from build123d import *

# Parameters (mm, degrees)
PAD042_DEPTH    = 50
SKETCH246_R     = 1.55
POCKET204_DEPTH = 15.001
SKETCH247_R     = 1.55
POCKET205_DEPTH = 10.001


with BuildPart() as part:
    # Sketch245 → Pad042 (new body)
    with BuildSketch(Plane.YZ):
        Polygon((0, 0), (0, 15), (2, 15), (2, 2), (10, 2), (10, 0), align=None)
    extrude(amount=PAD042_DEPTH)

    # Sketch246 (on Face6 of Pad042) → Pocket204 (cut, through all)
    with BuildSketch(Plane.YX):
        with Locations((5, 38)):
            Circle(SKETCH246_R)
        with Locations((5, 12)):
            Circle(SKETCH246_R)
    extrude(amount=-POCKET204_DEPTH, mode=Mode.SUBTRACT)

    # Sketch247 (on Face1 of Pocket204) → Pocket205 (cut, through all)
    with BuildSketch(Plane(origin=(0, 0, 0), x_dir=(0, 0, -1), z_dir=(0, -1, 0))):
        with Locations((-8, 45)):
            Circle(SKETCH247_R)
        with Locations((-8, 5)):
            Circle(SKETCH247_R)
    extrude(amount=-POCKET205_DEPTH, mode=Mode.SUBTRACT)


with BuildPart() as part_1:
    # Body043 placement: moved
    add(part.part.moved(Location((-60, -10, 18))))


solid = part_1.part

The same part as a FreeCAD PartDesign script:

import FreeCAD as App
import Part
import Sketcher

V = App.Vector
Q = App.Units.Quantity

doc = App.newDocument("Part")
params = doc.addObject("Spreadsheet::Sheet", "Params")
for row, (alias, value) in enumerate([
    ("sketch1_width", "10 mm"),
    ("sketch1_width2", "8 mm"),
    ("sketch1_height", "15 mm"),
    ("pad1_length", "50 mm"),
    ("sketch2_diameter", "3.1 mm"),
    ("sketch3_diameter", "3.1 mm"),
], start=1):
    params.set(f"A{row}", alias)
    params.set(f"B{row}", "=" + value)
    params.setAlias(f"B{row}", alias)

body = doc.addObject("PartDesign::Body", "Body")

sketch1 = doc.addObject("Sketcher::SketchObject", "Sketch")
body.addObject(sketch1)
sketch1.AttachmentSupport = (doc.YZ_Plane, [""])
sketch1.MapMode = "FlatFace"
sketch1.addGeometry(Part.LineSegment(V(0, 15, 0), V(0, 0, 0)), False)
sketch1.addGeometry(Part.LineSegment(V(0, 0, 0), V(10, 0, 0)), False)
sketch1.addGeometry(Part.LineSegment(V(10, 0, 0), V(10, 2, 0)), False)
sketch1.addGeometry(Part.LineSegment(V(10, 2, 0), V(2, 2, 0)), False)
sketch1.addGeometry(Part.LineSegment(V(2, 2, 0), V(2, 15, 0)), False)
sketch1.addGeometry(Part.LineSegment(V(2, 15, 0), V(0, 15, 0)), False)
sketch1.addConstraint(Sketcher.Constraint("Coincident", 0, 2, 1, 1))
sketch1.addConstraint(Sketcher.Constraint("Coincident", 1, 2, 2, 1))
sketch1.addConstraint(Sketcher.Constraint("Coincident", 2, 2, 3, 1))
sketch1.addConstraint(Sketcher.Constraint("Coincident", 3, 2, 4, 1))
sketch1.addConstraint(Sketcher.Constraint("Coincident", 4, 2, 5, 1))
sketch1.addConstraint(Sketcher.Constraint("Coincident", 5, 2, 0, 1))
sketch1.addConstraint(Sketcher.Constraint("Vertical", 0))
sketch1.addConstraint(Sketcher.Constraint("Horizontal", 1))
sketch1.addConstraint(Sketcher.Constraint("Vertical", 2))
sketch1.addConstraint(Sketcher.Constraint("Horizontal", 3))
sketch1.addConstraint(Sketcher.Constraint("Vertical", 4))
sketch1.addConstraint(Sketcher.Constraint("Horizontal", 5))
sketch1.addConstraint(Sketcher.Constraint("Coincident", 0, 2, -1, 1))
sketch1.addConstraint(Sketcher.Constraint("Equal", 5, 2))
sketch1.addConstraint(Sketcher.Constraint("DistanceX", 1, 1, 1, 2, Q("10 mm")))
sketch1.addConstraint(Sketcher.Constraint("DistanceX", 3, 2, 3, 1, Q("8 mm")))
sketch1.addConstraint(Sketcher.Constraint("DistanceY", 0, 2, 0, 1, Q("15 mm")))
sketch1.setExpression("Constraints[14]", "Params.sketch1_width")
sketch1.setExpression("Constraints[15]", "Params.sketch1_width2")
sketch1.setExpression("Constraints[16]", "Params.sketch1_height")
pad1 = doc.addObject("PartDesign::Pad", "Pad")
body.addObject(pad1)
pad1.Profile = sketch1
pad1.setExpression("Length", "Params.pad1_length")

sketch2 = doc.addObject("Sketcher::SketchObject", "Sketch001")
body.addObject(sketch2)
sketch2.AttachmentSupport = (doc.XY_Plane, [""])
sketch2.MapMode = "FlatFace"
sketch2.addGeometry(Part.Circle(V(38, 5, 0), V(0, 0, 1), 1.6), False)
sketch2.addGeometry(Part.Circle(V(12, 5, 0), V(0, 0, 1), 1.6), False)
sketch2.addConstraint(Sketcher.Constraint("Equal", 0, 1))
sketch2.addConstraint(Sketcher.Constraint("Horizontal", 0, 3, 1, 3))
sketch2.addConstraint(Sketcher.Constraint("Diameter", 0, Q("3.1 mm")))
sketch2.addConstraint(Sketcher.Constraint("DistanceX", -1, 1, 0, 3, Q("38 mm")))
sketch2.addConstraint(Sketcher.Constraint("DistanceY", -1, 1, 0, 3, Q("5 mm")))
sketch2.addConstraint(Sketcher.Constraint("DistanceX", -1, 1, 1, 3, Q("12 mm")))
sketch2.setExpression("Constraints[2]", "Params.sketch2_diameter")
pocket1 = doc.addObject("PartDesign::Pocket", "Pocket")
body.addObject(pocket1)
pocket1.Profile = sketch2
pocket1.Type = "ThroughAll"
pocket1.Reversed = True

sketch3 = doc.addObject("Sketcher::SketchObject", "Sketch002")
body.addObject(sketch3)
sketch3.AttachmentSupport = (doc.XZ_Plane, [""])
sketch3.MapMode = "FlatFace"
sketch3.addGeometry(Part.Circle(V(45, 8, 0), V(0, 0, 1), 1.6), False)
sketch3.addGeometry(Part.Circle(V(5, 8, 0), V(0, 0, 1), 1.6), False)
sketch3.addConstraint(Sketcher.Constraint("Equal", 0, 1))
sketch3.addConstraint(Sketcher.Constraint("Horizontal", 0, 3, 1, 3))
sketch3.addConstraint(Sketcher.Constraint("Diameter", 0, Q("3.1 mm")))
sketch3.addConstraint(Sketcher.Constraint("DistanceX", -1, 1, 0, 3, Q("45 mm")))
sketch3.addConstraint(Sketcher.Constraint("DistanceY", -1, 1, 0, 3, Q("8 mm")))
sketch3.addConstraint(Sketcher.Constraint("DistanceX", -1, 1, 1, 3, Q("5 mm")))
sketch3.setExpression("Constraints[2]", "Params.sketch3_diameter")
pocket2 = doc.addObject("PartDesign::Pocket", "Pocket001")
body.addObject(pocket2)
pocket2.Profile = sketch3
pocket2.Type = "ThroughAll"
body2 = doc.addObject("PartDesign::Body", "Body001")
doc.recompute()

body.Placement = App.Placement(V(-60, -10, 18), App.Rotation(V(0, 0, 1), 0))
boolean = doc.addObject("PartDesign::Boolean", "Boolean")
body2.addObject(boolean)
boolean.Type = "Fuse"
boolean.addObjects([body])

doc.recompute()
